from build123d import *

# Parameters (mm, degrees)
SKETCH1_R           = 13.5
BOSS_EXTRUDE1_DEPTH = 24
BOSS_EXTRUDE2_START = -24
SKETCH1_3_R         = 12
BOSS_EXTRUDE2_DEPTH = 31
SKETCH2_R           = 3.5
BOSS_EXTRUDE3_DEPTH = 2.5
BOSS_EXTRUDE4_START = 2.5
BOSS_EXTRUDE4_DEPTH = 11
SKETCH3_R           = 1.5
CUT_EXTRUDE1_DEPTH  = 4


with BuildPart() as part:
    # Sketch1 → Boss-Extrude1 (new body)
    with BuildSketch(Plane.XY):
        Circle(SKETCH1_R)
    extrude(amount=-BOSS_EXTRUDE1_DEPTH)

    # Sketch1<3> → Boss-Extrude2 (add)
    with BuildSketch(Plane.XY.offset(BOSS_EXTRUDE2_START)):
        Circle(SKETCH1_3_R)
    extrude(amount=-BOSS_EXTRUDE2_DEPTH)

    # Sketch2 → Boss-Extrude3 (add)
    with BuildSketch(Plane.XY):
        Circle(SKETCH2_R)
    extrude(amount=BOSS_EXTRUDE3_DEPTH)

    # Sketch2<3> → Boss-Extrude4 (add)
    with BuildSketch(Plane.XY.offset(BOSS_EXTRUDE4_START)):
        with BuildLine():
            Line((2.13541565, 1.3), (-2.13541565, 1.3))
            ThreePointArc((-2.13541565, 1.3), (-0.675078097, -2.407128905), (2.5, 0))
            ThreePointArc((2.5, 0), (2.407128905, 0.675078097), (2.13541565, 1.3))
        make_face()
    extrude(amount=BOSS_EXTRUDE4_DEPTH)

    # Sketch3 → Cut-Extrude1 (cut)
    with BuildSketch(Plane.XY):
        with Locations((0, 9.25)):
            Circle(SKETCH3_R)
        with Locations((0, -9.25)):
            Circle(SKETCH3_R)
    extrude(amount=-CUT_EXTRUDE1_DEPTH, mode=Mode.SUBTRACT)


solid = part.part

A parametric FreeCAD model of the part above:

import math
import FreeCAD as App
import Part
import Sketcher
from FreeCAD import Vector
Q = App.Units.Quantity

doc = App.newDocument("Part")
body = doc.addObject("PartDesign::Body", "Body")

sketch1 = body.newObject("Sketcher::SketchObject", "Sketch")
sketch1.AttachmentSupport = (doc.getObject("XY_Plane"), [""])
sketch1.MapMode = "FlatFace"
sketch1.addGeometry(Part.Circle(Vector(0, 0, 0), Vector(0, 0, 1), 13.5), False)
sketch1.addConstraint(Sketcher.Constraint("Coincident", 0, 3, -1, 1))
sketch1.addConstraint(Sketcher.Constraint("Diameter", 0, Q("27 mm")))
pad1 = body.newObject("PartDesign::Pad", "Pad")
pad1.Profile = sketch1
pad1.Length = 24
pad1.Reversed = True

sketch2 = body.newObject("Sketcher::SketchObject", "Sketch001")
sketch2.AttachmentSupport = (doc.getObject("XY_Plane"), [""])
sketch2.MapMode = "FlatFace"
sketch2.AttachmentOffset = App.Placement(Vector(0, 0, -24), App.Rotation())
sketch2.addGeometry(Part.Circle(Vector(0, 0, 0), Vector(0, 0, 1), 12), False)
sketch2.addConstraint(Sketcher.Constraint("Coincident", 0, 3, -1, 1))
sketch2.addConstraint(Sketcher.Constraint("Diameter", 0, Q("24 mm")))
pad2 = body.newObject("PartDesign::Pad", "Pad001")
pad2.Profile = sketch2
pad2.Length = 31
pad2.Reversed = True

sketch3 = body.newObject("Sketcher::SketchObject", "Sketch002")
sketch3.AttachmentSupport = (doc.getObject("XY_Plane"), [""])
sketch3.MapMode = "FlatFace"
sketch3.addGeometry(Part.Circle(Vector(0, 0, 0), Vector(0, 0, 1), 3.5), False)
sketch3.addConstraint(Sketcher.Constraint("Coincident", 0, 3, -1, 1))
sketch3.addConstraint(Sketcher.Constraint("Diameter", 0, Q("7 mm")))
pad3 = body.newObject("PartDesign::Pad", "Pad002")
pad3.Profile = sketch3
pad3.Length = 2.5

sketch4 = body.newObject("Sketcher::SketchObject", "Sketch003")
sketch4.AttachmentSupport = (doc.getObject("XY_Plane"), [""])
sketch4.MapMode = "FlatFace"
sketch4.AttachmentOffset = App.Placement(Vector(0, 0, 2.5), App.Rotation())
sketch4.addGeometry(Part.LineSegment(Vector(2.135416, 1.3, 0), Vector(-2.135416, 1.3, 0)), False)
sketch4.addGeometry(Part.ArcOfCircle(Part.Circle(Vector(0, 0, 0), Vector(0, 0, 1), 2.5), math.radians(148.667748), math.radians(360)), False)
sketch4.addGeometry(Part.ArcOfCircle(Part.Circle(Vector(0, 0, 0), Vector(0, 0, 1), 2.5), math.radians(0), math.radians(31.332252)), False)
sketch4.addConstraint(Sketcher.Constraint("Coincident", 0, 2, 1, 1))
sketch4.addConstraint(Sketcher.Constraint("Tangent", 1, 2, 2, 1))
sketch4.addConstraint(Sketcher.Constraint("Coincident", 2, 2, 0, 1))
sketch4.addConstraint(Sketcher.Constraint("Horizontal", 0))
sketch4.addConstraint(Sketcher.Constraint("Coincident", 1, 3, -1, 1))
sketch4.addConstraint(Sketcher.Constraint("Equal", 1, 2))
sketch4.addConstraint(Sketcher.Constraint("PointOnObject", 1, 2, -1))
sketch4.addConstraint(Sketcher.Constraint("Radius", 1, Q("2.5 mm")))
sketch4.addConstraint(Sketcher.Constraint("DistanceY", -1, 1, 0, 2, Q("1.3 mm")))
pad4 = body.newObject("PartDesign::Pad", "Pad003")
pad4.Profile = sketch4
pad4.Length = 11

sketch5 = body.newObject("Sketcher::SketchObject", "Sketch004")
sketch5.AttachmentSupport = (doc.getObject("XY_Plane"), [""])
sketch5.MapMode = "FlatFace"
sketch5.addGeometry(Part.Circle(Vector(0, 9.25, 0), Vector(0, 0, 1), 1.5), False)
sketch5.addGeometry(Part.Circle(Vector(0, -9.25, 0), Vector(0, 0, 1), 1.5), False)
sketch5.addConstraint(Sketcher.Constraint("Equal", 0, 1))
sketch5.addConstraint(Sketcher.Constraint("Symmetric", 0, 3, 1, 3, -1, 1))
sketch5.addConstraint(Sketcher.Constraint("PointOnObject", 0, 3, -2))
sketch5.addConstraint(Sketcher.Constraint("Diameter", 0, Q("3 mm")))
sketch5.addConstraint(Sketcher.Constraint("DistanceY", 1, 3, 0, 3, Q("18.5 mm")))
pocket1 = body.newObject("PartDesign::Pocket", "Pocket")
pocket1.Profile = sketch5
pocket1.Length = 4

doc.recompute()
